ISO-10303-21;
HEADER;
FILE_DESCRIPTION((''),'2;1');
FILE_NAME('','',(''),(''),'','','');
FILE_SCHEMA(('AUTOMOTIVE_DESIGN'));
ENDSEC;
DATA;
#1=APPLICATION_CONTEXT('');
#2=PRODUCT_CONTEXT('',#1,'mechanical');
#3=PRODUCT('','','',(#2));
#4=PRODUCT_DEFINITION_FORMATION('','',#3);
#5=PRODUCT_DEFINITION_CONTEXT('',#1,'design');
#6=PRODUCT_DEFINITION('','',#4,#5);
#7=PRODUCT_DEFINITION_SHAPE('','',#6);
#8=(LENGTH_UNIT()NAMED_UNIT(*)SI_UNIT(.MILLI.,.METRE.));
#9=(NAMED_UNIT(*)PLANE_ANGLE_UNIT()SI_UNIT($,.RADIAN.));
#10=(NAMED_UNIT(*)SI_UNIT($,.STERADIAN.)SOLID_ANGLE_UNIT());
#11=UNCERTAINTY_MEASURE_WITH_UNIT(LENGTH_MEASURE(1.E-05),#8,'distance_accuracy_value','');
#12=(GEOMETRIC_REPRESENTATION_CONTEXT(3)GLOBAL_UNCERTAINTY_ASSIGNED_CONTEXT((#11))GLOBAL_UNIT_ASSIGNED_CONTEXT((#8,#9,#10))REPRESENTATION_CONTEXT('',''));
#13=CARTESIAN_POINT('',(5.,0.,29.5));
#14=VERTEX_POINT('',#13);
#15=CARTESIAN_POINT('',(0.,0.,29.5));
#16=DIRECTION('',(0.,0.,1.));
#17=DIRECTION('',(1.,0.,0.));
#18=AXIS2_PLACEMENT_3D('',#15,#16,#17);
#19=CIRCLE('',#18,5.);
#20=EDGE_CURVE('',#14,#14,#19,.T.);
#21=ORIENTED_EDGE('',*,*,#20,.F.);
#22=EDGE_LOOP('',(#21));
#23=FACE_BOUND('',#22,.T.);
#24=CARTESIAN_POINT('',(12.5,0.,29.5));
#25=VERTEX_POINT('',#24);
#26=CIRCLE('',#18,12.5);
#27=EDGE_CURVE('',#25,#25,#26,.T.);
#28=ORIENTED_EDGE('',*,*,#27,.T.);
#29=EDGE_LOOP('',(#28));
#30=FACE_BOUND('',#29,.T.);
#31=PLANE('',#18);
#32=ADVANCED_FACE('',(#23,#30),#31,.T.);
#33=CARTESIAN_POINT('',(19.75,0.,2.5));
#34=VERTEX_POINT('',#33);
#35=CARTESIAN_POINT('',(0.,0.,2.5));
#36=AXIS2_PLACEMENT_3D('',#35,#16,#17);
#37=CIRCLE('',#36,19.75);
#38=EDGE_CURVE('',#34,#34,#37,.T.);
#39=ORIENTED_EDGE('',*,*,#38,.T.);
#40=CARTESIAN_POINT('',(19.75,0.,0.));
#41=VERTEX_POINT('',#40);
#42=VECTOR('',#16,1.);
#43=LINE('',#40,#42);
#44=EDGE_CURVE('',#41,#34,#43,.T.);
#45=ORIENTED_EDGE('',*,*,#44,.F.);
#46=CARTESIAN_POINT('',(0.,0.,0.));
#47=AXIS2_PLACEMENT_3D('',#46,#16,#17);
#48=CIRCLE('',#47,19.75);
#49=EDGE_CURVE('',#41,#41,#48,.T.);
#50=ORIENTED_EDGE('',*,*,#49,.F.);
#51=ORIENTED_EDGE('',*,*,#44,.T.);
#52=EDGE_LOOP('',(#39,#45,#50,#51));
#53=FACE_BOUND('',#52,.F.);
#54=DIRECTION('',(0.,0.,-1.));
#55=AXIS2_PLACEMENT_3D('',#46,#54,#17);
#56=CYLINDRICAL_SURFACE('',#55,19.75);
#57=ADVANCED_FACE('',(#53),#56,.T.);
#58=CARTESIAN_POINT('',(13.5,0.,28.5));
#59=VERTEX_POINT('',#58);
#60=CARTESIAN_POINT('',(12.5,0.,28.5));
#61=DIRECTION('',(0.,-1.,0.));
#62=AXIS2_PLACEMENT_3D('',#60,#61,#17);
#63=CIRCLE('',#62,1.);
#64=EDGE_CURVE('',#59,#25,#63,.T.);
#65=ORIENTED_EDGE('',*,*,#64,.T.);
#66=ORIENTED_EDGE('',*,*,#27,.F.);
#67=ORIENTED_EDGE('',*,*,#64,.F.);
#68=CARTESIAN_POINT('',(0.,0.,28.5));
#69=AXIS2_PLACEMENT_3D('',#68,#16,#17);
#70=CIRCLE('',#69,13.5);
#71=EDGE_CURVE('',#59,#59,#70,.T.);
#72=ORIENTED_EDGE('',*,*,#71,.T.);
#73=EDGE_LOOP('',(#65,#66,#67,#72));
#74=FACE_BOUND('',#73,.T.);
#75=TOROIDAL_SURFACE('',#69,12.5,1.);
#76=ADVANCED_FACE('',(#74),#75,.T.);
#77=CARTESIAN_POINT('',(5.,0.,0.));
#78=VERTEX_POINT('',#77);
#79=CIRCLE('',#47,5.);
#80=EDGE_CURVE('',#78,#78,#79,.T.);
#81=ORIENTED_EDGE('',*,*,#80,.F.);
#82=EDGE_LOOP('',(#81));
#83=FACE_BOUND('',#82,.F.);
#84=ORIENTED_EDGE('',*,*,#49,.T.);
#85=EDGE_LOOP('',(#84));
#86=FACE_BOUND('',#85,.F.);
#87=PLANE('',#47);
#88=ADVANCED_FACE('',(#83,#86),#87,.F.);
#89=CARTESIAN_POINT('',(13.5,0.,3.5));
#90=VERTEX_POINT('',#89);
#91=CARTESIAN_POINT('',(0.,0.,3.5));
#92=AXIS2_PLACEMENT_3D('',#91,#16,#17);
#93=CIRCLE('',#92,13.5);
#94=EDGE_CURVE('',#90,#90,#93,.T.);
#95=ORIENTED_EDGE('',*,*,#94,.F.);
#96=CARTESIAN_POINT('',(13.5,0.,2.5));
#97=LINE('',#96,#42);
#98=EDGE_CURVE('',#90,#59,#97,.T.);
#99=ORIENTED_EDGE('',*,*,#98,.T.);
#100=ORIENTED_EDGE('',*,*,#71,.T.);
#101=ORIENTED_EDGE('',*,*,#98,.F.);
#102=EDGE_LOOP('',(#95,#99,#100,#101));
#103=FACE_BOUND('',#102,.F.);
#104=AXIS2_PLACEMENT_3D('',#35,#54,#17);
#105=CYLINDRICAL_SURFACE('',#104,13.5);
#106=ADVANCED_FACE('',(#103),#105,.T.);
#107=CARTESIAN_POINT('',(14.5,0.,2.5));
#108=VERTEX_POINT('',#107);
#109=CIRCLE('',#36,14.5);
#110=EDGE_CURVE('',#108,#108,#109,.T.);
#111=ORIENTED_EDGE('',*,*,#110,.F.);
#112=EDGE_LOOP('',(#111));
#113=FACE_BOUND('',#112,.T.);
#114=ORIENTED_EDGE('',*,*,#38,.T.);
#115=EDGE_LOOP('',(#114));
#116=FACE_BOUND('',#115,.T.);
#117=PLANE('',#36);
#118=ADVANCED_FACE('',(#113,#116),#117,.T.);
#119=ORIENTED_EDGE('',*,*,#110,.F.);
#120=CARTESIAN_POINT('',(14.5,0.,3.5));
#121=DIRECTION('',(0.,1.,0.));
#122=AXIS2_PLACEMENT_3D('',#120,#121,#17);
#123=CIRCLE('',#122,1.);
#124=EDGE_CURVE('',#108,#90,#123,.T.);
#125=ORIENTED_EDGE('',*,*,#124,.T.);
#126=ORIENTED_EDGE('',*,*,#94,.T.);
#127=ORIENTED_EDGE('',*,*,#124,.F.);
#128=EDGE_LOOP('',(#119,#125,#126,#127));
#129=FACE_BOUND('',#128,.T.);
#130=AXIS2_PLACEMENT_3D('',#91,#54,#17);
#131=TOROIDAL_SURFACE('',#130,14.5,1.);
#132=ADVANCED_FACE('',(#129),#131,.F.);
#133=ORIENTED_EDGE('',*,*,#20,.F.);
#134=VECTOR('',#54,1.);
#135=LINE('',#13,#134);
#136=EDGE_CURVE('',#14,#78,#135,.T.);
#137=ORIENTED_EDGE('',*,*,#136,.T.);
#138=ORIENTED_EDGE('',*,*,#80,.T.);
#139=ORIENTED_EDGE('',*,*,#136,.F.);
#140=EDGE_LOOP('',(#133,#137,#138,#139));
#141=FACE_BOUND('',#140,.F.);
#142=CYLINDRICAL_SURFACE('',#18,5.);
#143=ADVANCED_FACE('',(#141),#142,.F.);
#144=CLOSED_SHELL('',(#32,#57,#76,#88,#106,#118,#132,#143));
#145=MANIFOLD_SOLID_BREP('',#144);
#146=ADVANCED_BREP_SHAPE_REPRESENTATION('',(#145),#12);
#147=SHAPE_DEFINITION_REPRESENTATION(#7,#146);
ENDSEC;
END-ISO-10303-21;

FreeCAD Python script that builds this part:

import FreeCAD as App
import Part
import Sketcher
from FreeCAD import Vector


def edges_at(feature, points):
    """Names of the edges that pass closest to the given points."""
    edges = feature.Shape.Edges
    near = lambda p: min(range(len(edges)), key=lambda i: edges[i].distToShape(Part.Vertex(*p))[0])
    return sorted({f"Edge{near(p) + 1}" for p in points})

doc = App.newDocument("Part")
body = doc.addObject("PartDesign::Body", "Body")

# Sketch on XY plane
sketch1 = body.newObject("Sketcher::SketchObject", "Sketch")
sketch1.AttachmentSupport = (doc.getObject("XY_Plane"), [""])
sketch1.MapMode = "FlatFace"
sketch1.addGeometry(Part.Circle(Vector(0, 0, 0), Vector(0, 0, 1), 19.75), False)
sketch1.addConstraint(Sketcher.Constraint("Coincident", 0, 3, -1, 1))
sketch1.addConstraint(Sketcher.Constraint("Diameter", 0, 39.5))
pad1 = body.newObject("PartDesign::Pad", "Pad")
pad1.Profile = sketch1
pad1.Length = 2.5

# Sketch on XY plane
sketch2 = body.newObject("Sketcher::SketchObject", "Sketch001")
sketch2.AttachmentSupport = (doc.getObject("XY_Plane"), [""])
sketch2.MapMode = "FlatFace"
sketch2.AttachmentOffset = App.Placement(Vector(0, 0, 2.5), App.Rotation())
sketch2.addGeometry(Part.Circle(Vector(0, 0, 0), Vector(0, 0, 1), 13.5), False)
sketch2.addConstraint(Sketcher.Constraint("Coincident", 0, 3, -1, 1))
sketch2.addConstraint(Sketcher.Constraint("Diameter", 0, 27.0))
pad2 = body.newObject("PartDesign::Pad", "Pad001")
pad2.Profile = sketch2
pad2.Length = 27

# Sketch on XY plane
sketch3 = body.newObject("Sketcher::SketchObject", "Sketch002")
sketch3.AttachmentSupport = (doc.getObject("XY_Plane"), [""])
sketch3.MapMode = "FlatFace"
sketch3.AttachmentOffset = App.Placement(Vector(0, 0, 29.5), App.Rotation())
sketch3.addGeometry(Part.Circle(Vector(0, 0, 0), Vector(0, 0, 1), 5), False)
sketch3.addConstraint(Sketcher.Constraint("Coincident", 0, 3, -1, 1))
sketch3.addConstraint(Sketcher.Constraint("Diameter", 0, 10.0))
pocket1 = body.newObject("PartDesign::Pocket", "Pocket")
pocket1.Profile = sketch3
pocket1.Type = "ThroughAll"
doc.recompute()

fillet = body.newObject("PartDesign::Fillet", "Fillet")
fillet.Base = (pocket1, edges_at(pocket1, [(-13.5, 0, 29.5), (-13.5, 0, 2.5)]))
fillet.Radius = 1

doc.recompute()
